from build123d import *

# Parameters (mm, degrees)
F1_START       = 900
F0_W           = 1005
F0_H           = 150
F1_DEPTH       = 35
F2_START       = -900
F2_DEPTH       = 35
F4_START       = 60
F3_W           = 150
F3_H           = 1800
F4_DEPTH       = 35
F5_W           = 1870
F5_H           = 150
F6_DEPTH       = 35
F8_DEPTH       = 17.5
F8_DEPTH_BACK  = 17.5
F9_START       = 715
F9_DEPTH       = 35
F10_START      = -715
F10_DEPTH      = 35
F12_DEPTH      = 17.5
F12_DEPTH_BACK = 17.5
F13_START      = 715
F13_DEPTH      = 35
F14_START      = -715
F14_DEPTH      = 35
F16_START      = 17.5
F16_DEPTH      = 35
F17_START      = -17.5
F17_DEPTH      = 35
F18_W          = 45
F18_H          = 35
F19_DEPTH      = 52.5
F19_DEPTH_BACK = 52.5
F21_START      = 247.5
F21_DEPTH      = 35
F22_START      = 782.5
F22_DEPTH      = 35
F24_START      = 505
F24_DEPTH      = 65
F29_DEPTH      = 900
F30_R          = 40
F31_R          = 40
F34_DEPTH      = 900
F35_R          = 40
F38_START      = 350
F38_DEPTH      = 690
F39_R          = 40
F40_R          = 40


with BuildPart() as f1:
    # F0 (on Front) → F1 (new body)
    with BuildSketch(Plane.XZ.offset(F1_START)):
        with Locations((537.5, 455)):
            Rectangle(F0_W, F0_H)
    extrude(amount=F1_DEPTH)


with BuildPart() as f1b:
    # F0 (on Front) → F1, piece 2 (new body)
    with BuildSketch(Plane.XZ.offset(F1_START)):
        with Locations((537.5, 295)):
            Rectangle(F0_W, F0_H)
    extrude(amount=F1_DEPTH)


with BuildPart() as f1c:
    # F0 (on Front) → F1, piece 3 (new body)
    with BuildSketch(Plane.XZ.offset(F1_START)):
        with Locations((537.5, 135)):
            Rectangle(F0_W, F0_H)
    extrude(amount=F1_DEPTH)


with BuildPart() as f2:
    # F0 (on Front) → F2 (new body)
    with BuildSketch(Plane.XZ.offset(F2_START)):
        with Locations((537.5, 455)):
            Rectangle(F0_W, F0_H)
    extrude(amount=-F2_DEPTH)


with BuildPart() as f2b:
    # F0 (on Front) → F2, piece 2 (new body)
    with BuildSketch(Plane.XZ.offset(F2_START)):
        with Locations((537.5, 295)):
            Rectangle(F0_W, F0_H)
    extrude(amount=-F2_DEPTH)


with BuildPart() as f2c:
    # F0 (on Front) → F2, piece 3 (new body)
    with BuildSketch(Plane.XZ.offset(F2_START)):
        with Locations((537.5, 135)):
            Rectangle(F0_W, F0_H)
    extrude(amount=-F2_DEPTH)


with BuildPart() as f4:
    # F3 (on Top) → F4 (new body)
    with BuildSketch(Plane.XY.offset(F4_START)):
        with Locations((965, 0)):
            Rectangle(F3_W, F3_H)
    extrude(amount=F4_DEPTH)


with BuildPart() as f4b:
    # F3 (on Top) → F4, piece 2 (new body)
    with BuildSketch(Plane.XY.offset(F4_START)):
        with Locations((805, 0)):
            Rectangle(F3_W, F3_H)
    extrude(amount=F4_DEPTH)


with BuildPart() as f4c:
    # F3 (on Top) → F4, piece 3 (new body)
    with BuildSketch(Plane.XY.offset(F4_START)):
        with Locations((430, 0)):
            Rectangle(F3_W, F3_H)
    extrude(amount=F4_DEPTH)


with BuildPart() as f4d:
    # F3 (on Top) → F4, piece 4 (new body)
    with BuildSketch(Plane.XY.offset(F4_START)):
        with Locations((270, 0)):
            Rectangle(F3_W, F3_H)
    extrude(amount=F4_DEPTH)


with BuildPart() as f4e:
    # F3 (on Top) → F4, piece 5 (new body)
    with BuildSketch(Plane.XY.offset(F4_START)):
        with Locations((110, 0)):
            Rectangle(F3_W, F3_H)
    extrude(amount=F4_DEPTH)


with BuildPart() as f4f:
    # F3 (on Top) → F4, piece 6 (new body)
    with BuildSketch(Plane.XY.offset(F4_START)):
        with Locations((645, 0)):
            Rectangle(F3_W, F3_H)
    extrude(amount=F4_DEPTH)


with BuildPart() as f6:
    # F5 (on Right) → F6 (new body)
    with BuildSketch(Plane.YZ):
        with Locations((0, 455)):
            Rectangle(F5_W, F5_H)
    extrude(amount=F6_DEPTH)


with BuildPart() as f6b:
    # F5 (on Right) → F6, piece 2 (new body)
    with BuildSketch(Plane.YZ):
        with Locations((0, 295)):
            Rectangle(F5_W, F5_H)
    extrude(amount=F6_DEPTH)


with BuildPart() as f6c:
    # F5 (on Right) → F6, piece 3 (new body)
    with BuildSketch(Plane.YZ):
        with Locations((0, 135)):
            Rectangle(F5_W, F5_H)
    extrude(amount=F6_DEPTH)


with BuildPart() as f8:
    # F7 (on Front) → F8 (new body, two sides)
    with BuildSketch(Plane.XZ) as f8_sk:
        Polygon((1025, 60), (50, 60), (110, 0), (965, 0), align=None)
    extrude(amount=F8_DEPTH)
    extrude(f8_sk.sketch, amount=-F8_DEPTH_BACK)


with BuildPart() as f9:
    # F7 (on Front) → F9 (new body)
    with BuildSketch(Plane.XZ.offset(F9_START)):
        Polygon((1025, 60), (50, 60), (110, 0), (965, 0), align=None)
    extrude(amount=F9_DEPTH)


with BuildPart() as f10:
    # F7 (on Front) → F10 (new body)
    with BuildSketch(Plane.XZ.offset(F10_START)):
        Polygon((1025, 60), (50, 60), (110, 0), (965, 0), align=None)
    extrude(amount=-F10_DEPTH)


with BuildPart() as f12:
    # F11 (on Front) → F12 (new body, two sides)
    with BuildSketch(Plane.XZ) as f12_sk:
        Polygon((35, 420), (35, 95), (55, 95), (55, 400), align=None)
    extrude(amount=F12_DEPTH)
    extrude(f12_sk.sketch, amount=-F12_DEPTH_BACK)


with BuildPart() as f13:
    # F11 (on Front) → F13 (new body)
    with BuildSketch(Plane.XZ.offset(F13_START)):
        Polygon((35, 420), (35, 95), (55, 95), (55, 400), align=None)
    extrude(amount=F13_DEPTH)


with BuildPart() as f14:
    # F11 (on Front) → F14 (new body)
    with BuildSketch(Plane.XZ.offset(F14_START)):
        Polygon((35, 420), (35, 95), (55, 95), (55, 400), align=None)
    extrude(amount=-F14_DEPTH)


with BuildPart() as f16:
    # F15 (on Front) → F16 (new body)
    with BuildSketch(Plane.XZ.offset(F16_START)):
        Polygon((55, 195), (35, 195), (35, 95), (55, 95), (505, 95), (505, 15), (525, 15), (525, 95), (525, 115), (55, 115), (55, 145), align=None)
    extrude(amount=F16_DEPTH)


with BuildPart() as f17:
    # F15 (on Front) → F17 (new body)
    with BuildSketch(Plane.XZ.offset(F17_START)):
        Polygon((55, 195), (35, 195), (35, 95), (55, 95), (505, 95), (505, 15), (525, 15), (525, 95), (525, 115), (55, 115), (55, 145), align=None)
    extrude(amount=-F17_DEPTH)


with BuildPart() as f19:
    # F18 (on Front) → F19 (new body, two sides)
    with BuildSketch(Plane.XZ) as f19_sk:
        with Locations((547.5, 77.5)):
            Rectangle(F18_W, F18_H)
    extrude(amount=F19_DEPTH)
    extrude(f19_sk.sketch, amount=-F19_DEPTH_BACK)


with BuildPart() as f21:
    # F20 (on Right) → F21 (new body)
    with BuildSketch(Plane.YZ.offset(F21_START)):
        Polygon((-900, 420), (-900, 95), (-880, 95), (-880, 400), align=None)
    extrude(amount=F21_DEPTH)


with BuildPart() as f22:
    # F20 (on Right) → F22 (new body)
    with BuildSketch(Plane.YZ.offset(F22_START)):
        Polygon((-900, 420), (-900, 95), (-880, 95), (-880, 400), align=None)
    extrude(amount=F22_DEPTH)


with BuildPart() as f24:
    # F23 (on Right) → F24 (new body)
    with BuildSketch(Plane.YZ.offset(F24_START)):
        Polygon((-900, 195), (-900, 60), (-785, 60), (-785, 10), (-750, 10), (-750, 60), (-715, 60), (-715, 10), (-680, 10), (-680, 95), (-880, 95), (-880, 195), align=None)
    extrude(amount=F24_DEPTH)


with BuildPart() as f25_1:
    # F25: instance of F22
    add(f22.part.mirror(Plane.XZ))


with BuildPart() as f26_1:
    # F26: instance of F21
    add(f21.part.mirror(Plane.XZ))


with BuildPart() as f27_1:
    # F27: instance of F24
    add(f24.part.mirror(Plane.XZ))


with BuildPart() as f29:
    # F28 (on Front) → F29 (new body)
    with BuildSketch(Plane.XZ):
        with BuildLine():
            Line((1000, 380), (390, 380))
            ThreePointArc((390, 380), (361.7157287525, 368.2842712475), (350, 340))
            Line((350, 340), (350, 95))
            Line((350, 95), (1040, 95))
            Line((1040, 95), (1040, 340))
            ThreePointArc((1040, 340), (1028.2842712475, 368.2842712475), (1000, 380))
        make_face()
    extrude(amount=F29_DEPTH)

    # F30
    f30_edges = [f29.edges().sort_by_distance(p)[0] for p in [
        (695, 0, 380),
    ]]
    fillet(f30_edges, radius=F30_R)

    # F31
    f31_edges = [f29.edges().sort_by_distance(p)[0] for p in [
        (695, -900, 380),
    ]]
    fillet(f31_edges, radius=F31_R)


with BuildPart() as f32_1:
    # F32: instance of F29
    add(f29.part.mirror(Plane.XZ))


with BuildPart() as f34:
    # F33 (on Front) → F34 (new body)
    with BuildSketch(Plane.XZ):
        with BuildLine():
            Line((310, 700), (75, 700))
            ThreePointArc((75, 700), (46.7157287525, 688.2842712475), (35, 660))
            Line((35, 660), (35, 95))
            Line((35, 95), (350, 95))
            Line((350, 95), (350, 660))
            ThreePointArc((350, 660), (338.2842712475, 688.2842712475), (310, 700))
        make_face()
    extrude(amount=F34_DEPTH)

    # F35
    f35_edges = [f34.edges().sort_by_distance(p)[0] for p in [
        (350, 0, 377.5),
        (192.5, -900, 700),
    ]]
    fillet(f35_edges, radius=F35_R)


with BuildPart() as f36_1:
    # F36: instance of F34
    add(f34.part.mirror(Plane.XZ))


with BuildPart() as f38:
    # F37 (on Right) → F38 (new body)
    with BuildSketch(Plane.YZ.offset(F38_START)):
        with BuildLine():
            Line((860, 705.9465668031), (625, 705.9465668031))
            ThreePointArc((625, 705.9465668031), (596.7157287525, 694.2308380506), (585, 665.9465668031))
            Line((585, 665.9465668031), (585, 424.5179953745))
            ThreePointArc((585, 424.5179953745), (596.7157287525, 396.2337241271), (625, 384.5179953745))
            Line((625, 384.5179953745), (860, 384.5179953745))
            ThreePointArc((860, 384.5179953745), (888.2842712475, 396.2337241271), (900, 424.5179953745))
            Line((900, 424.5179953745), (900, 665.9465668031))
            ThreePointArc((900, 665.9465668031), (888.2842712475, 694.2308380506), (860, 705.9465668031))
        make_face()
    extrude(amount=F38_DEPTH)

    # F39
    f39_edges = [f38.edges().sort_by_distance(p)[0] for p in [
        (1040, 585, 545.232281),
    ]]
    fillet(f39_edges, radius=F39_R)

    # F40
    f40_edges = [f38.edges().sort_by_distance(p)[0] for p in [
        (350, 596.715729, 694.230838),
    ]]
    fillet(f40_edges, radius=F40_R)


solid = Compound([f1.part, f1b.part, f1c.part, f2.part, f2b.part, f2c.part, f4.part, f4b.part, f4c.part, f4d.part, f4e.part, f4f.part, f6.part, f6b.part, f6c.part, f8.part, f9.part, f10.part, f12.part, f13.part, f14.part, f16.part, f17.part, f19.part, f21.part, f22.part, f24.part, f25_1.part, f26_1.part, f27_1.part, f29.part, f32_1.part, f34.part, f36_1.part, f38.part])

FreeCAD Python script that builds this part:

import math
import FreeCAD as App
import Part
import Sketcher


def edges_at(feature, points):
    """Names of the edges that pass closest to the given points."""
    edges = feature.Shape.Edges
    near = lambda p: min(range(len(edges)), key=lambda i: edges[i].distToShape(Part.Vertex(*p))[0])
    return sorted({f"Edge{near(p) + 1}" for p in points})


def add_polygon(sketch, points):
    """Adds a closed chain of lines whose ends are joined by coincident constraints."""
    first, n = sketch.GeometryCount, len(points)
    for a, b in zip(points, points[1:] + points[:1]):
        sketch.addGeometry(Part.LineSegment(App.Vector(*a, 0), App.Vector(*b, 0)), False)
    for i in range(n):
        sketch.addConstraint(Sketcher.Constraint("Coincident", first + i, 2, first + (i + 1) % n, 1))

doc = App.newDocument("Part")
body = doc.addObject("PartDesign::Body", "Body")

# Sketch on XZ plane
sketch1 = doc.addObject("Sketcher::SketchObject", "Sketch")
body.addObject(sketch1)
sketch1.AttachmentSupport = (doc.XZ_Plane, [""])
sketch1.MapMode = "FlatFace"
sketch1.AttachmentOffset = App.Placement(App.Vector(0, 0, 900), App.Rotation())
add_polygon(sketch1, [(35, 530), (35, 380), (1040, 380), (1040, 530)])  # lines 0-3
sketch1.addConstraint(Sketcher.Constraint("Vertical", 0))
sketch1.addConstraint(Sketcher.Constraint("Horizontal", 1))
sketch1.addConstraint(Sketcher.Constraint("Vertical", 2))
sketch1.addConstraint(Sketcher.Constraint("Horizontal", 3))
sketch1.addConstraint(Sketcher.Constraint("DistanceX", 1, 1, 1, 2, 1005.0))
sketch1.addConstraint(Sketcher.Constraint("DistanceY", 0, 2, 0, 1, 150.0))
sketch1.addConstraint(Sketcher.Constraint("DistanceX", -1, 1, 0, 2, 35.0))
sketch1.addConstraint(Sketcher.Constraint("DistanceY", -1, 1, 0, 2, 380.0))
pad1 = doc.addObject("PartDesign::Pad", "Pad")
body.addObject(pad1)
pad1.Profile = sketch1
pad1.Length = 35
body2 = doc.addObject("PartDesign::Body", "Body001")

# Sketch on XZ plane
sketch2 = doc.addObject("Sketcher::SketchObject", "Sketch001")
body2.addObject(sketch2)
sketch2.AttachmentSupport = (doc.getObject("XZ_Plane001"), [""])
sketch2.MapMode = "FlatFace"
sketch2.AttachmentOffset = App.Placement(App.Vector(0, 0, 900), App.Rotation())
add_polygon(sketch2, [(35, 370), (35, 220), (1040, 220), (1040, 370)])  # lines 0-3
sketch2.addConstraint(Sketcher.Constraint("Vertical", 0))
sketch2.addConstraint(Sketcher.Constraint("Horizontal", 1))
sketch2.addConstraint(Sketcher.Constraint("Vertical", 2))
sketch2.addConstraint(Sketcher.Constraint("Horizontal", 3))
sketch2.addConstraint(Sketcher.Constraint("DistanceX", 1, 1, 1, 2, 1005.0))
sketch2.addConstraint(Sketcher.Constraint("DistanceY", 0, 2, 0, 1, 150.0))
sketch2.addConstraint(Sketcher.Constraint("DistanceX", -1, 1, 0, 2, 35.0))
sketch2.addConstraint(Sketcher.Constraint("DistanceY", -1, 1, 0, 2, 220.0))
pad2 = doc.addObject("PartDesign::Pad", "Pad001")
body2.addObject(pad2)
pad2.Profile = sketch2
pad2.Length = 35
body3 = doc.addObject("PartDesign::Body", "Body002")

# Sketch on XZ plane
sketch3 = doc.addObject("Sketcher::SketchObject", "Sketch002")
body3.addObject(sketch3)
sketch3.AttachmentSupport = (doc.getObject("XZ_Plane002"), [""])
sketch3.MapMode = "FlatFace"
sketch3.AttachmentOffset = App.Placement(App.Vector(0, 0, 900), App.Rotation())
add_polygon(sketch3, [(35, 210), (35, 60), (1040, 60), (1040, 210)])  # lines 0-3
sketch3.addConstraint(Sketcher.Constraint("Vertical", 0))
sketch3.addConstraint(Sketcher.Constraint("Horizontal", 1))
sketch3.addConstraint(Sketcher.Constraint("Vertical", 2))
sketch3.addConstraint(Sketcher.Constraint("Horizontal", 3))
sketch3.addConstraint(Sketcher.Constraint("DistanceX", 1, 1, 1, 2, 1005.0))
sketch3.addConstraint(Sketcher.Constraint("DistanceY", 0, 2, 0, 1, 150.0))
sketch3.addConstraint(Sketcher.Constraint("DistanceX", -1, 1, 0, 2, 35.0))
sketch3.addConstraint(Sketcher.Constraint("DistanceY", -1, 1, 0, 2, 60.0))
pad3 = doc.addObject("PartDesign::Pad", "Pad002")
body3.addObject(pad3)
pad3.Profile = sketch3
pad3.Length = 35
body4 = doc.addObject("PartDesign::Body", "Body003")

# Sketch on XZ plane
sketch4 = doc.addObject("Sketcher::SketchObject", "Sketch003")
body4.addObject(sketch4)
sketch4.AttachmentSupport = (doc.getObject("XZ_Plane003"), [""])
sketch4.MapMode = "FlatFace"
sketch4.AttachmentOffset = App.Placement(App.Vector(0, 0, -900), App.Rotation())
add_polygon(sketch4, [(35, 530), (35, 380), (1040, 380), (1040, 530)])  # lines 0-3
sketch4.addConstraint(Sketcher.Constraint("Vertical", 0))
sketch4.addConstraint(Sketcher.Constraint("Horizontal", 1))
sketch4.addConstraint(Sketcher.Constraint("Vertical", 2))
sketch4.addConstraint(Sketcher.Constraint("Horizontal", 3))
sketch4.addConstraint(Sketcher.Constraint("DistanceX", 1, 1, 1, 2, 1005.0))
sketch4.addConstraint(Sketcher.Constraint("DistanceY", 0, 2, 0, 1, 150.0))
sketch4.addConstraint(Sketcher.Constraint("DistanceX", -1, 1, 0, 2, 35.0))
sketch4.addConstraint(Sketcher.Constraint("DistanceY", -1, 1, 0, 2, 380.0))
pad4 = doc.addObject("PartDesign::Pad", "Pad003")
body4.addObject(pad4)
pad4.Profile = sketch4
pad4.Length = 35
pad4.Reversed = True
body5 = doc.addObject("PartDesign::Body", "Body004")

# Sketch on XZ plane
sketch5 = doc.addObject("Sketcher::SketchObject", "Sketch004")
body5.addObject(sketch5)
sketch5.AttachmentSupport = (doc.getObject("XZ_Plane004"), [""])
sketch5.MapMode = "FlatFace"
sketch5.AttachmentOffset = App.Placement(App.Vector(0, 0, -900), App.Rotation())
add_polygon(sketch5, [(35, 370), (35, 220), (1040, 220), (1040, 370)])  # lines 0-3
sketch5.addConstraint(Sketcher.Constraint("Vertical", 0))
sketch5.addConstraint(Sketcher.Constraint("Horizontal", 1))
sketch5.addConstraint(Sketcher.Constraint("Vertical", 2))
sketch5.addConstraint(Sketcher.Constraint("Horizontal", 3))
sketch5.addConstraint(Sketcher.Constraint("DistanceX", 1, 1, 1, 2, 1005.0))
sketch5.addConstraint(Sketcher.Constraint("DistanceY", 0, 2, 0, 1, 150.0))
sketch5.addConstraint(Sketcher.Constraint("DistanceX", -1, 1, 0, 2, 35.0))
sketch5.addConstraint(Sketcher.Constraint("DistanceY", -1, 1, 0, 2, 220.0))
pad5 = doc.addObject("PartDesign::Pad", "Pad004")
body5.addObject(pad5)
pad5.Profile = sketch5
pad5.Length = 35
pad5.Reversed = True
body6 = doc.addObject("PartDesign::Body", "Body005")

# Sketch on XZ plane
sketch6 = doc.addObject("Sketcher::SketchObject", "Sketch005")
body6.addObject(sketch6)
sketch6.AttachmentSupport = (doc.getObject("XZ_Plane005"), [""])
sketch6.MapMode = "FlatFace"
sketch6.AttachmentOffset = App.Placement(App.Vector(0, 0, -900), App.Rotation())
add_polygon(sketch6, [(35, 210), (35, 60), (1040, 60), (1040, 210)])  # lines 0-3
sketch6.addConstraint(Sketcher.Constraint("Vertical", 0))
sketch6.addConstraint(Sketcher.Constraint("Horizontal", 1))
sketch6.addConstraint(Sketcher.Constraint("Vertical", 2))
sketch6.addConstraint(Sketcher.Constraint("Horizontal", 3))
sketch6.addConstraint(Sketcher.Constraint("DistanceX", 1, 1, 1, 2, 1005.0))
sketch6.addConstraint(Sketcher.Constraint("DistanceY", 0, 2, 0, 1, 150.0))
sketch6.addConstraint(Sketcher.Constraint("DistanceX", -1, 1, 0, 2, 35.0))
sketch6.addConstraint(Sketcher.Constraint("DistanceY", -1, 1, 0, 2, 60.0))
pad6 = doc.addObject("PartDesign::Pad", "Pad005")
body6.addObject(pad6)
pad6.Profile = sketch6
pad6.Length = 35
pad6.Reversed = True
body7 = doc.addObject("PartDesign::Body", "Body006")

# Sketch on XY plane
sketch7 = doc.addObject("Sketcher::SketchObject", "Sketch006")
body7.addObject(sketch7)
sketch7.AttachmentSupport = (doc.getObject("XY_Plane006"), [""])
sketch7.MapMode = "FlatFace"
sketch7.AttachmentOffset = App.Placement(App.Vector(0, 0, 60), App.Rotation())
add_polygon(sketch7, [(890, 900), (890, -900), (1040, -900), (1040, 900)])  # lines 0-3
sketch7.addConstraint(Sketcher.Constraint("Vertical", 0))
sketch7.addConstraint(Sketcher.Constraint("Horizontal", 1))
sketch7.addConstraint(Sketcher.Constraint("Vertical", 2))
sketch7.addConstraint(Sketcher.Constraint("Horizontal", 3))
sketch7.addConstraint(Sketcher.Constraint("DistanceX", 1, 1, 1, 2, 150.0))
sketch7.addConstraint(Sketcher.Constraint("DistanceY", 0, 2, 0, 1, 1800.0))
sketch7.addConstraint(Sketcher.Constraint("DistanceX", -1, 1, 0, 2, 890.0))
sketch7.addConstraint(Sketcher.Constraint("DistanceY", 0, 2, -1, 1, 900.0))
pad7 = doc.addObject("PartDesign::Pad", "Pad006")
body7.addObject(pad7)
pad7.Profile = sketch7
pad7.Length = 35
body8 = doc.addObject("PartDesign::Body", "Body007")

# Sketch on XY plane
sketch8 = doc.addObject("Sketcher::SketchObject", "Sketch007")
body8.addObject(sketch8)
sketch8.AttachmentSupport = (doc.getObject("XY_Plane007"), [""])
sketch8.MapMode = "FlatFace"
sketch8.AttachmentOffset = App.Placement(App.Vector(0, 0, 60), App.Rotation())
add_polygon(sketch8, [(730, 900), (730, -900), (880, -900), (880, 900)])  # lines 0-3
sketch8.addConstraint(Sketcher.Constraint("Vertical", 0))
sketch8.addConstraint(Sketcher.Constraint("Horizontal", 1))
sketch8.addConstraint(Sketcher.Constraint("Vertical", 2))
sketch8.addConstraint(Sketcher.Constraint("Horizontal", 3))
sketch8.addConstraint(Sketcher.Constraint("DistanceX", 1, 1, 1, 2, 150.0))
sketch8.addConstraint(Sketcher.Constraint("DistanceY", 0, 2, 0, 1, 1800.0))
sketch8.addConstraint(Sketcher.Constraint("DistanceX", -1, 1, 0, 2, 730.0))
sketch8.addConstraint(Sketcher.Constraint("DistanceY", 0, 2, -1, 1, 900.0))
pad8 = doc.addObject("PartDesign::Pad", "Pad007")
body8.addObject(pad8)
pad8.Profile = sketch8
pad8.Length = 35
body9 = doc.addObject("PartDesign::Body", "Body008")

# Sketch on XY plane
sketch9 = doc.addObject("Sketcher::SketchObject", "Sketch008")
body9.addObject(sketch9)
sketch9.AttachmentSupport = (doc.getObject("XY_Plane008"), [""])
sketch9.MapMode = "FlatFace"
sketch9.AttachmentOffset = App.Placement(App.Vector(0, 0, 60), App.Rotation())
add_polygon(sketch9, [(355, 900), (355, -900), (505, -900), (505, 900)])  # lines 0-3
sketch9.addConstraint(Sketcher.Constraint("Vertical", 0))
sketch9.addConstraint(Sketcher.Constraint("Horizontal", 1))
sketch9.addConstraint(Sketcher.Constraint("Vertical", 2))
sketch9.addConstraint(Sketcher.Constraint("Horizontal", 3))
sketch9.addConstraint(Sketcher.Constraint("DistanceX", 1, 1, 1, 2, 150.0))
sketch9.addConstraint(Sketcher.Constraint("DistanceY", 0, 2, 0, 1, 1800.0))
sketch9.addConstraint(Sketcher.Constraint("DistanceX", -1, 1, 0, 2, 355.0))
sketch9.addConstraint(Sketcher.Constraint("DistanceY", 0, 2, -1, 1, 900.0))
pad9 = doc.addObject("PartDesign::Pad", "Pad008")
body9.addObject(pad9)
pad9.Profile = sketch9
pad9.Length = 35
body10 = doc.addObject("PartDesign::Body", "Body009")

# Sketch on XY plane
sketch10 = doc.addObject("Sketcher::SketchObject", "Sketch009")
body10.addObject(sketch10)
sketch10.AttachmentSupport = (doc.getObject("XY_Plane009"), [""])
sketch10.MapMode = "FlatFace"
sketch10.AttachmentOffset = App.Placement(App.Vector(0, 0, 60), App.Rotation())
add_polygon(sketch10, [(195, 900), (195, -900), (345, -900), (345, 900)])  # lines 0-3
sketch10.addConstraint(Sketcher.Constraint("Vertical", 0))
sketch10.addConstraint(Sketcher.Constraint("Horizontal", 1))
sketch10.addConstraint(Sketcher.Constraint("Vertical", 2))
sketch10.addConstraint(Sketcher.Constraint("Horizontal", 3))
sketch10.addConstraint(Sketcher.Constraint("DistanceX", 1, 1, 1, 2, 150.0))
sketch10.addConstraint(Sketcher.Constraint("DistanceY", 0, 2, 0, 1, 1800.0))
sketch10.addConstraint(Sketcher.Constraint("DistanceX", -1, 1, 0, 2, 195.0))
sketch10.addConstraint(Sketcher.Constraint("DistanceY", 0, 2, -1, 1, 900.0))
pad10 = doc.addObject("PartDesign::Pad", "Pad009")
body10.addObject(pad10)
pad10.Profile = sketch10
pad10.Length = 35
body11 = doc.addObject("PartDesign::Body", "Body010")

# Sketch on XY plane
sketch11 = doc.addObject("Sketcher::SketchObject", "Sketch010")
body11.addObject(sketch11)
sketch11.AttachmentSupport = (doc.getObject("XY_Plane010"), [""])
sketch11.MapMode = "FlatFace"
sketch11.AttachmentOffset = App.Placement(App.Vector(0, 0, 60), App.Rotation())
add_polygon(sketch11, [(35, 900), (35, -900), (185, -900), (185, 900)])  # lines 0-3
sketch11.addConstraint(Sketcher.Constraint("Vertical", 0))
sketch11.addConstraint(Sketcher.Constraint("Horizontal", 1))
sketch11.addConstraint(Sketcher.Constraint("Vertical", 2))
sketch11.addConstraint(Sketcher.Constraint("Horizontal", 3))
sketch11.addConstraint(Sketcher.Constraint("DistanceX", 1, 1, 1, 2, 150.0))
sketch11.addConstraint(Sketcher.Constraint("DistanceY", 0, 2, 0, 1, 1800.0))
sketch11.addConstraint(Sketcher.Constraint("DistanceX", -1, 1, 0, 2, 35.0))
sketch11.addConstraint(Sketcher.Constraint("DistanceY", 0, 2, -1, 1, 900.0))
pad11 = doc.addObject("PartDesign::Pad", "Pad010")
body11.addObject(pad11)
pad11.Profile = sketch11
pad11.Length = 35
body12 = doc.addObject("PartDesign::Body", "Body011")

# Sketch on XY plane
sketch12 = doc.addObject("Sketcher::SketchObject", "Sketch011")
body12.addObject(sketch12)
sketch12.AttachmentSupport = (doc.getObject("XY_Plane011"), [""])
sketch12.MapMode = "FlatFace"
sketch12.AttachmentOffset = App.Placement(App.Vector(0, 0, 60), App.Rotation())
add_polygon(sketch12, [(570, 900), (570, -900), (720, -900), (720, 900)])  # lines 0-3
sketch12.addConstraint(Sketcher.Constraint("Vertical", 0))
sketch12.addConstraint(Sketcher.Constraint("Horizontal", 1))
sketch12.addConstraint(Sketcher.Constraint("Vertical", 2))
sketch12.addConstraint(Sketcher.Constraint("Horizontal", 3))
sketch12.addConstraint(Sketcher.Constraint("DistanceX", 1, 1, 1, 2, 150.0))
sketch12.addConstraint(Sketcher.Constraint("DistanceY", 0, 2, 0, 1, 1800.0))
sketch12.addConstraint(Sketcher.Constraint("DistanceX", -1, 1, 0, 2, 570.0))
sketch12.addConstraint(Sketcher.Constraint("DistanceY", 0, 2, -1, 1, 900.0))
pad12 = doc.addObject("PartDesign::Pad", "Pad011")
body12.addObject(pad12)
pad12.Profile = sketch12
pad12.Length = 35
body13 = doc.addObject("PartDesign::Body", "Body012")

# Sketch on YZ plane
sketch13 = doc.addObject("Sketcher::SketchObject", "Sketch012")
body13.addObject(sketch13)
sketch13.AttachmentSupport = (doc.getObject("YZ_Plane012"), [""])
sketch13.MapMode = "FlatFace"
add_polygon(sketch13, [(-935, 530), (-935, 380), (935, 380), (935, 530)])  # lines 0-3
sketch13.addConstraint(Sketcher.Constraint("Vertical", 0))
sketch13.addConstraint(Sketcher.Constraint("Horizontal", 1))
sketch13.addConstraint(Sketcher.Constraint("Vertical", 2))
sketch13.addConstraint(Sketcher.Constraint("Horizontal", 3))
sketch13.addConstraint(Sketcher.Constraint("DistanceX", 1, 1, 1, 2, 1870.0))
sketch13.addConstraint(Sketcher.Constraint("DistanceY", 0, 2, 0, 1, 150.0))
sketch13.addConstraint(Sketcher.Constraint("DistanceX", 0, 2, -1, 1, 935.0))
sketch13.addConstraint(Sketcher.Constraint("DistanceY", -1, 1, 0, 2, 380.0))
pad13 = doc.addObject("PartDesign::Pad", "Pad012")
body13.addObject(pad13)
pad13.Profile = sketch13
pad13.Length = 35
body14 = doc.addObject("PartDesign::Body", "Body013")

# Sketch on YZ plane
sketch14 = doc.addObject("Sketcher::SketchObject", "Sketch013")
body14.addObject(sketch14)
sketch14.AttachmentSupport = (doc.getObject("YZ_Plane013"), [""])
sketch14.MapMode = "FlatFace"
add_polygon(sketch14, [(-935, 370), (-935, 220), (935, 220), (935, 370)])  # lines 0-3
sketch14.addConstraint(Sketcher.Constraint("Vertical", 0))
sketch14.addConstraint(Sketcher.Constraint("Horizontal", 1))
sketch14.addConstraint(Sketcher.Constraint("Vertical", 2))
sketch14.addConstraint(Sketcher.Constraint("Horizontal", 3))
sketch14.addConstraint(Sketcher.Constraint("DistanceX", 1, 1, 1, 2, 1870.0))
sketch14.addConstraint(Sketcher.Constraint("DistanceY", 0, 2, 0, 1, 150.0))
sketch14.addConstraint(Sketcher.Constraint("DistanceX", 0, 2, -1, 1, 935.0))
sketch14.addConstraint(Sketcher.Constraint("DistanceY", -1, 1, 0, 2, 220.0))
pad14 = doc.addObject("PartDesign::Pad", "Pad013")
body14.addObject(pad14)
pad14.Profile = sketch14
pad14.Length = 35
body15 = doc.addObject("PartDesign::Body", "Body014")

# Sketch on YZ plane
sketch15 = doc.addObject("Sketcher::SketchObject", "Sketch014")
body15.addObject(sketch15)
sketch15.AttachmentSupport = (doc.getObject("YZ_Plane014"), [""])
sketch15.MapMode = "FlatFace"
add_polygon(sketch15, [(-935, 210), (-935, 60), (935, 60), (935, 210)])  # lines 0-3
sketch15.addConstraint(Sketcher.Constraint("Vertical", 0))
sketch15.addConstraint(Sketcher.Constraint("Horizontal", 1))
sketch15.addConstraint(Sketcher.Constraint("Vertical", 2))
sketch15.addConstraint(Sketcher.Constraint("Horizontal", 3))
sketch15.addConstraint(Sketcher.Constraint("DistanceX", 1, 1, 1, 2, 1870.0))
sketch15.addConstraint(Sketcher.Constraint("DistanceY", 0, 2, 0, 1, 150.0))
sketch15.addConstraint(Sketcher.Constraint("DistanceX", 0, 2, -1, 1, 935.0))
sketch15.addConstraint(Sketcher.Constraint("DistanceY", -1, 1, 0, 2, 60.0))
pad15 = doc.addObject("PartDesign::Pad", "Pad014")
body15.addObject(pad15)
pad15.Profile = sketch15
pad15.Length = 35
body16 = doc.addObject("PartDesign::Body", "Body015")

# Sketch on XZ plane
sketch16 = doc.addObject("Sketcher::SketchObject", "Sketch015")
body16.addObject(sketch16)
sketch16.AttachmentSupport = (doc.getObject("XZ_Plane015"), [""])
sketch16.MapMode = "FlatFace"
add_polygon(sketch16, [(1025, 60), (50, 60), (110, 0), (965, 0)])  # lines 0-3
sketch16.addConstraint(Sketcher.Constraint("Horizontal", 0))
sketch16.addConstraint(Sketcher.Constraint("Horizontal", 2))
sketch16.addConstraint(Sketcher.Constraint("PointOnObject", 1, 2, -1))
sketch16.addConstraint(Sketcher.Constraint("Perpendicular", 1, 3))
sketch16.addConstraint(Sketcher.Constraint("Equal", 1, 3))
sketch16.addConstraint(Sketcher.Constraint("DistanceX", 0, 2, 0, 1, 975.0))
sketch16.addConstraint(Sketcher.Constraint("DistanceX", 2, 1, 2, 2, 855.0))
sketch16.addConstraint(Sketcher.Constraint("DistanceX", -1, 1, 0, 2, 50.0))
pad16 = doc.addObject("PartDesign::Pad", "Pad015")
body16.addObject(pad16)
pad16.Profile = sketch16
pad16.Type = "TwoLengths"
pad16.Length = 17.5
pad16.Length2 = 17.5
body17 = doc.addObject("PartDesign::Body", "Body016")

# Sketch on XZ plane
sketch17 = doc.addObject("Sketcher::SketchObject", "Sketch016")
body17.addObject(sketch17)
sketch17.AttachmentSupport = (doc.getObject("XZ_Plane016"), [""])
sketch17.MapMode = "FlatFace"
sketch17.AttachmentOffset = App.Placement(App.Vector(0, 0, 715), App.Rotation())
add_polygon(sketch17, [(1025, 60), (50, 60), (110, 0), (965, 0)])  # lines 0-3
sketch17.addConstraint(Sketcher.Constraint("Horizontal", 0))
sketch17.addConstraint(Sketcher.Constraint("Horizontal", 2))
sketch17.addConstraint(Sketcher.Constraint("PointOnObject", 1, 2, -1))
sketch17.addConstraint(Sketcher.Constraint("Perpendicular", 1, 3))
sketch17.addConstraint(Sketcher.Constraint("Equal", 1, 3))
sketch17.addConstraint(Sketcher.Constraint("DistanceX", 0, 2, 0, 1, 975.0))
sketch17.addConstraint(Sketcher.Constraint("DistanceX", 2, 1, 2, 2, 855.0))
sketch17.addConstraint(Sketcher.Constraint("DistanceX", -1, 1, 0, 2, 50.0))
pad17 = doc.addObject("PartDesign::Pad", "Pad016")
body17.addObject(pad17)
pad17.Profile = sketch17
pad17.Length = 35
body18 = doc.addObject("PartDesign::Body", "Body017")

# Sketch on XZ plane
sketch18 = doc.addObject("Sketcher::SketchObject", "Sketch017")
body18.addObject(sketch18)
sketch18.AttachmentSupport = (doc.getObject("XZ_Plane017"), [""])
sketch18.MapMode = "FlatFace"
sketch18.AttachmentOffset = App.Placement(App.Vector(0, 0, -715), App.Rotation())
add_polygon(sketch18, [(1025, 60), (50, 60), (110, 0), (965, 0)])  # lines 0-3
sketch18.addConstraint(Sketcher.Constraint("Horizontal", 0))
sketch18.addConstraint(Sketcher.Constraint("Horizontal", 2))
sketch18.addConstraint(Sketcher.Constraint("PointOnObject", 1, 2, -1))
sketch18.addConstraint(Sketcher.Constraint("Perpendicular", 1, 3))
sketch18.addConstraint(Sketcher.Constraint("Equal", 1, 3))
sketch18.addConstraint(Sketcher.Constraint("DistanceX", 0, 2, 0, 1, 975.0))
sketch18.addConstraint(Sketcher.Constraint("DistanceX", 2, 1, 2, 2, 855.0))
sketch18.addConstraint(Sketcher.Constraint("DistanceX", -1, 1, 0, 2, 50.0))
pad18 = doc.addObject("PartDesign::Pad", "Pad017")
body18.addObject(pad18)
pad18.Profile = sketch18
pad18.Length = 35
pad18.Reversed = True
body19 = doc.addObject("PartDesign::Body", "Body018")

# Sketch on XZ plane
sketch19 = doc.addObject("Sketcher::SketchObject", "Sketch018")
body19.addObject(sketch19)
sketch19.AttachmentSupport = (doc.getObject("XZ_Plane018"), [""])
sketch19.MapMode = "FlatFace"
add_polygon(sketch19, [(35, 420), (35, 95), (55, 95), (55, 400)])  # lines 0-3
sketch19.addConstraint(Sketcher.Constraint("Vertical", 0))
sketch19.addConstraint(Sketcher.Constraint("Horizontal", 1))
sketch19.addConstraint(Sketcher.Constraint("Vertical", 2))
sketch19.addConstraint(Sketcher.Constraint("DistanceX", 1, 1, 1, 2, 20.0))
sketch19.addConstraint(Sketcher.Constraint("DistanceY", 0, 2, 0, 1, 325.0))
sketch19.addConstraint(Sketcher.Constraint("DistanceY", 2, 1, 2, 2, 305.0))
sketch19.addConstraint(Sketcher.Constraint("DistanceX", -1, 1, 0, 2, 35.0))
sketch19.addConstraint(Sketcher.Constraint("DistanceY", -1, 1, 0, 2, 95.0))
pad19 = doc.addObject("PartDesign::Pad", "Pad018")
body19.addObject(pad19)
pad19.Profile = sketch19
pad19.Type = "TwoLengths"
pad19.Length = 17.5
pad19.Length2 = 17.5
body20 = doc.addObject("PartDesign::Body", "Body019")

# Sketch on XZ plane
sketch20 = doc.addObject("Sketcher::SketchObject", "Sketch019")
body20.addObject(sketch20)
sketch20.AttachmentSupport = (doc.getObject("XZ_Plane019"), [""])
sketch20.MapMode = "FlatFace"
sketch20.AttachmentOffset = App.Placement(App.Vector(0, 0, 715), App.Rotation())
add_polygon(sketch20, [(35, 420), (35, 95), (55, 95), (55, 400)])  # lines 0-3
sketch20.addConstraint(Sketcher.Constraint("Vertical", 0))
sketch20.addConstraint(Sketcher.Constraint("Horizontal", 1))
sketch20.addConstraint(Sketcher.Constraint("Vertical", 2))
sketch20.addConstraint(Sketcher.Constraint("DistanceX", 1, 1, 1, 2, 20.0))
sketch20.addConstraint(Sketcher.Constraint("DistanceY", 0, 2, 0, 1, 325.0))
sketch20.addConstraint(Sketcher.Constraint("DistanceY", 2, 1, 2, 2, 305.0))
sketch20.addConstraint(Sketcher.Constraint("DistanceX", -1, 1, 0, 2, 35.0))
sketch20.addConstraint(Sketcher.Constraint("DistanceY", -1, 1, 0, 2, 95.0))
pad20 = doc.addObject("PartDesign::Pad", "Pad019")
body20.addObject(pad20)
pad20.Profile = sketch20
pad20.Length = 35
body21 = doc.addObject("PartDesign::Body", "Body020")

# Sketch on XZ plane
sketch21 = doc.addObject("Sketcher::SketchObject", "Sketch020")
body21.addObject(sketch21)
sketch21.AttachmentSupport = (doc.getObject("XZ_Plane020"), [""])
sketch21.MapMode = "FlatFace"
sketch21.AttachmentOffset = App.Placement(App.Vector(0, 0, -715), App.Rotation())
add_polygon(sketch21, [(35, 420), (35, 95), (55, 95), (55, 400)])  # lines 0-3
sketch21.addConstraint(Sketcher.Constraint("Vertical", 0))
sketch21.addConstraint(Sketcher.Constraint("Horizontal", 1))
sketch21.addConstraint(Sketcher.Constraint("Vertical", 2))
sketch21.addConstraint(Sketcher.Constraint("DistanceX", 1, 1, 1, 2, 20.0))
sketch21.addConstraint(Sketcher.Constraint("DistanceY", 0, 2, 0, 1, 325.0))
sketch21.addConstraint(Sketcher.Constraint("DistanceY", 2, 1, 2, 2, 305.0))
sketch21.addConstraint(Sketcher.Constraint("DistanceX", -1, 1, 0, 2, 35.0))
sketch21.addConstraint(Sketcher.Constraint("DistanceY", -1, 1, 0, 2, 95.0))
pad21 = doc.addObject("PartDesign::Pad", "Pad020")
body21.addObject(pad21)
pad21.Profile = sketch21
pad21.Length = 35
pad21.Reversed = True
body22 = doc.addObject("PartDesign::Body", "Body021")

# Sketch on XZ plane
sketch22 = doc.addObject("Sketcher::SketchObject", "Sketch021")
body22.addObject(sketch22)
sketch22.AttachmentSupport = (doc.getObject("XZ_Plane021"), [""])
sketch22.MapMode = "FlatFace"
sketch22.AttachmentOffset = App.Placement(App.Vector(0, 0, 17.5), App.Rotation())
add_polygon(sketch22, [(55, 195), (35, 195), (35, 95), (505, 95), (505, 15), (525, 15), (525, 115), (55, 115)])  # lines 0-7
sketch22.addConstraint(Sketcher.Constraint("Horizontal", 0))
sketch22.addConstraint(Sketcher.Constraint("Vertical", 1))
sketch22.addConstraint(Sketcher.Constraint("Horizontal", 2))
sketch22.addConstraint(Sketcher.Constraint("Vertical", 3))
sketch22.addConstraint(Sketcher.Constraint("Horizontal", 4))
sketch22.addConstraint(Sketcher.Constraint("Vertical", 5))
sketch22.addConstraint(Sketcher.Constraint("Horizontal", 6))
sketch22.addConstraint(Sketcher.Constraint("Vertical", 7))
sketch22.addConstraint(Sketcher.Constraint("Equal", 0, 4))
sketch22.addConstraint(Sketcher.Constraint("Equal", 1, 5))
sketch22.addConstraint(Sketcher.Constraint("DistanceX", 0, 2, 0, 1, 20.0))
sketch22.addConstraint(Sketcher.Constraint("DistanceX", 2, 1, 2, 2, 470.0))
sketch22.addConstraint(Sketcher.Constraint("DistanceY", 1, 2, 1, 1, 100.0))
sketch22.addConstraint(Sketcher.Constraint("DistanceY", 3, 2, 3, 1, 80.0))
sketch22.addConstraint(Sketcher.Constraint("DistanceX", -1, 1, 0, 2, 35.0))
sketch22.addConstraint(Sketcher.Constraint("DistanceY", -1, 1, 0, 2, 195.0))
pad22 = doc.addObject("PartDesign::Pad", "Pad021")
body22.addObject(pad22)
pad22.Profile = sketch22
pad22.Length = 35
body23 = doc.addObject("PartDesign::Body", "Body022")

# Sketch on XZ plane
sketch23 = doc.addObject("Sketcher::SketchObject", "Sketch022")
body23.addObject(sketch23)
sketch23.AttachmentSupport = (doc.getObject("XZ_Plane022"), [""])
sketch23.MapMode = "FlatFace"
sketch23.AttachmentOffset = App.Placement(App.Vector(0, 0, -17.5), App.Rotation())
add_polygon(sketch23, [(55, 195), (35, 195), (35, 95), (505, 95), (505, 15), (525, 15), (525, 115), (55, 115)])  # lines 0-7
sketch23.addConstraint(Sketcher.Constraint("Horizontal", 0))
sketch23.addConstraint(Sketcher.Constraint("Vertical", 1))
sketch23.addConstraint(Sketcher.Constraint("Horizontal", 2))
sketch23.addConstraint(Sketcher.Constraint("Vertical", 3))
sketch23.addConstraint(Sketcher.Constraint("Horizontal", 4))
sketch23.addConstraint(Sketcher.Constraint("Vertical", 5))
sketch23.addConstraint(Sketcher.Constraint("Horizontal", 6))
sketch23.addConstraint(Sketcher.Constraint("Vertical", 7))
sketch23.addConstraint(Sketcher.Constraint("Equal", 0, 4))
sketch23.addConstraint(Sketcher.Constraint("Equal", 1, 5))
sketch23.addConstraint(Sketcher.Constraint("DistanceX", 0, 2, 0, 1, 20.0))
sketch23.addConstraint(Sketcher.Constraint("DistanceX", 2, 1, 2, 2, 470.0))
sketch23.addConstraint(Sketcher.Constraint("DistanceY", 1, 2, 1, 1, 100.0))
sketch23.addConstraint(Sketcher.Constraint("DistanceY", 3, 2, 3, 1, 80.0))
sketch23.addConstraint(Sketcher.Constraint("DistanceX", -1, 1, 0, 2, 35.0))
sketch23.addConstraint(Sketcher.Constraint("DistanceY", -1, 1, 0, 2, 195.0))
pad23 = doc.addObject("PartDesign::Pad", "Pad022")
body23.addObject(pad23)
pad23.Profile = sketch23
pad23.Length = 35
pad23.Reversed = True
body24 = doc.addObject("PartDesign::Body", "Body023")

# Sketch on XZ plane
sketch24 = doc.addObject("Sketcher::SketchObject", "Sketch023")
body24.addObject(sketch24)
sketch24.AttachmentSupport = (doc.getObject("XZ_Plane023"), [""])
sketch24.MapMode = "FlatFace"
add_polygon(sketch24, [(525, 95), (525, 60), (570, 60), (570, 95)])  # lines 0-3
sketch24.addConstraint(Sketcher.Constraint("Vertical", 0))
sketch24.addConstraint(Sketcher.Constraint("Horizontal", 1))
sketch24.addConstraint(Sketcher.Constraint("Vertical", 2))
sketch24.addConstraint(Sketcher.Constraint("Horizontal", 3))
sketch24.addConstraint(Sketcher.Constraint("DistanceX", 1, 1, 1, 2, 45.0))
sketch24.addConstraint(Sketcher.Constraint("DistanceY", 0, 2, 0, 1, 35.0))
sketch24.addConstraint(Sketcher.Constraint("DistanceX", -1, 1, 0, 2, 525.0))
sketch24.addConstraint(Sketcher.Constraint("DistanceY", -1, 1, 0, 2, 60.0))
pad24 = doc.addObject("PartDesign::Pad", "Pad023")
body24.addObject(pad24)
pad24.Profile = sketch24
pad24.Type = "TwoLengths"
pad24.Length = 52.5
pad24.Length2 = 52.5
body25 = doc.addObject("PartDesign::Body", "Body024")

# Sketch on YZ plane
sketch25 = doc.addObject("Sketcher::SketchObject", "Sketch024")
body25.addObject(sketch25)
sketch25.AttachmentSupport = (doc.getObject("YZ_Plane024"), [""])
sketch25.MapMode = "FlatFace"
sketch25.AttachmentOffset = App.Placement(App.Vector(0, 0, 247.5), App.Rotation())
add_polygon(sketch25, [(-900, 420), (-900, 95), (-880, 95), (-880, 400)])  # lines 0-3
sketch25.addConstraint(Sketcher.Constraint("Vertical", 0))
sketch25.addConstraint(Sketcher.Constraint("Horizontal", 1))
sketch25.addConstraint(Sketcher.Constraint("Vertical", 2))
sketch25.addConstraint(Sketcher.Constraint("DistanceX", 1, 1, 1, 2, 20.0))
sketch25.addConstraint(Sketcher.Constraint("DistanceY", 0, 2, 0, 1, 325.0))
sketch25.addConstraint(Sketcher.Constraint("DistanceY", 2, 1, 2, 2, 305.0))
sketch25.addConstraint(Sketcher.Constraint("DistanceX", 0, 2, -1, 1, 900.0))
sketch25.addConstraint(Sketcher.Constraint("DistanceY", -1, 1, 0, 2, 95.0))
pad25 = doc.addObject("PartDesign::Pad", "Pad024")
body25.addObject(pad25)
pad25.Profile = sketch25
pad25.Length = 35
body26 = doc.addObject("PartDesign::Body", "Body025")

# Sketch on YZ plane
sketch26 = doc.addObject("Sketcher::SketchObject", "Sketch025")
body26.addObject(sketch26)
sketch26.AttachmentSupport = (doc.getObject("YZ_Plane025"), [""])
sketch26.MapMode = "FlatFace"
sketch26.AttachmentOffset = App.Placement(App.Vector(0, 0, 782.5), App.Rotation())
add_polygon(sketch26, [(-900, 420), (-900, 95), (-880, 95), (-880, 400)])  # lines 0-3
sketch26.addConstraint(Sketcher.Constraint("Vertical", 0))
sketch26.addConstraint(Sketcher.Constraint("Horizontal", 1))
sketch26.addConstraint(Sketcher.Constraint("Vertical", 2))
sketch26.addConstraint(Sketcher.Constraint("DistanceX", 1, 1, 1, 2, 20.0))
sketch26.addConstraint(Sketcher.Constraint("DistanceY", 0, 2, 0, 1, 325.0))
sketch26.addConstraint(Sketcher.Constraint("DistanceY", 2, 1, 2, 2, 305.0))
sketch26.addConstraint(Sketcher.Constraint("DistanceX", 0, 2, -1, 1, 900.0))
sketch26.addConstraint(Sketcher.Constraint("DistanceY", -1, 1, 0, 2, 95.0))
pad26 = doc.addObject("PartDesign::Pad", "Pad025")
body26.addObject(pad26)
pad26.Profile = sketch26
pad26.Length = 35
body27 = doc.addObject("PartDesign::Body", "Body026")

# Sketch on YZ plane
sketch27 = doc.addObject("Sketcher::SketchObject", "Sketch026")
body27.addObject(sketch27)
sketch27.AttachmentSupport = (doc.getObject("YZ_Plane026"), [""])
sketch27.MapMode = "FlatFace"
sketch27.AttachmentOffset = App.Placement(App.Vector(0, 0, 505), App.Rotation())
add_polygon(sketch27, [(-900, 195), (-900, 60), (-785, 60), (-785, 10), (-750, 10), (-750, 60), (-715, 60), (-715, 10), (-680, 10), (-680, 95), (-880, 95), (-880, 195)])  # lines 0-11
sketch27.addConstraint(Sketcher.Constraint("Vertical", 0))
sketch27.addConstraint(Sketcher.Constraint("Horizontal", 1))
sketch27.addConstraint(Sketcher.Constraint("Vertical", 2))
sketch27.addConstraint(Sketcher.Constraint("Horizontal", 3))
sketch27.addConstraint(Sketcher.Constraint("Vertical", 4))
sketch27.addConstraint(Sketcher.Constraint("Horizontal", 5))
sketch27.addConstraint(Sketcher.Constraint("Vertical", 6))
sketch27.addConstraint(Sketcher.Constraint("Horizontal", 7))
sketch27.addConstraint(Sketcher.Constraint("Vertical", 8))
sketch27.addConstraint(Sketcher.Constraint("Horizontal", 9))
sketch27.addConstraint(Sketcher.Constraint("Vertical", 10))
sketch27.addConstraint(Sketcher.Constraint("Horizontal", 11))
sketch27.addConstraint(Sketcher.Constraint("Horizontal", 1, 2, 4, 2))
sketch27.addConstraint(Sketcher.Constraint("Horizontal", 3, 2, 6, 2))
sketch27.addConstraint(Sketcher.Constraint("Equal", 3, 5))
sketch27.addConstraint(Sketcher.Constraint("Equal", 5, 7))
sketch27.addConstraint(Sketcher.Constraint("DistanceX", 1, 1, 1, 2, 115.0))
sketch27.addConstraint(Sketcher.Constraint("DistanceX", 3, 1, 3, 2, 35.0))
sketch27.addConstraint(Sketcher.Constraint("DistanceX", 9, 2, 9, 1, 200.0))
sketch27.addConstraint(Sketcher.Constraint("DistanceY", 0, 2, 0, 1, 135.0))
sketch27.addConstraint(Sketcher.Constraint("DistanceY", 2, 2, 2, 1, 50.0))
sketch27.addConstraint(Sketcher.Constraint("DistanceY", 8, 1, 8, 2, 85.0))
sketch27.addConstraint(Sketcher.Constraint("DistanceX", 0, 2, -1, 1, 900.0))
sketch27.addConstraint(Sketcher.Constraint("DistanceY", -1, 1, 0, 2, 60.0))
pad27 = doc.addObject("PartDesign::Pad", "Pad026")
body27.addObject(pad27)
pad27.Profile = sketch27
pad27.Length = 65
body28 = doc.addObject("PartDesign::Body", "Body027")
doc.recompute()

mirroring = doc.addObject("Part::Mirroring", "Mirroring")
mirroring.Source = body26
mirroring.Base = App.Vector(0, 0, 0)
mirroring.Normal = App.Vector(0, -1, 0)
body28.BaseFeature = mirroring
doc.recompute()
body29 = doc.addObject("PartDesign::Body", "Body028")
doc.recompute()

mirroring2 = doc.addObject("Part::Mirroring", "Mirroring001")
mirroring2.Source = body25
mirroring2.Base = App.Vector(0, 0, 0)
mirroring2.Normal = App.Vector(0, -1, 0)
body29.BaseFeature = mirroring2
doc.recompute()
body30 = doc.addObject("PartDesign::Body", "Body029")
doc.recompute()

mirroring3 = doc.addObject("Part::Mirroring", "Mirroring002")
mirroring3.Source = body27
mirroring3.Base = App.Vector(0, 0, 0)
mirroring3.Normal = App.Vector(0, -1, 0)
body30.BaseFeature = mirroring3
doc.recompute()
body31 = doc.addObject("PartDesign::Body", "Body030")

# Sketch on XZ plane
sketch28 = doc.addObject("Sketcher::SketchObject", "Sketch027")
body31.addObject(sketch28)
sketch28.AttachmentSupport = (doc.getObject("XZ_Plane030"), [""])
sketch28.MapMode = "FlatFace"
sketch28.addGeometry(Part.LineSegment(App.Vector(1000, 380, 0), App.Vector(390, 380, 0)), False)
sketch28.addGeometry(Part.ArcOfCircle(Part.Circle(App.Vector(390, 340, 0), App.Vector(0, 0, 1), 40), math.radians(90), math.radians(180)), False)
sketch28.addGeometry(Part.LineSegment(App.Vector(350, 340, 0), App.Vector(350, 95, 0)), False)
sketch28.addGeometry(Part.LineSegment(App.Vector(350, 95, 0), App.Vector(1040, 95, 0)), False)
sketch28.addGeometry(Part.LineSegment(App.Vector(1040, 95, 0), App.Vector(1040, 340, 0)), False)
sketch28.addGeometry(Part.ArcOfCircle(Part.Circle(App.Vector(1000, 340, 0), App.Vector(0, 0, 1), 40), math.radians(0), math.radians(90)), False)
sketch28.addConstraint(Sketcher.Constraint("Tangent", 0, 2, 1, 1))
sketch28.addConstraint(Sketcher.Constraint("Tangent", 1, 2, 2, 1))
sketch28.addConstraint(Sketcher.Constraint("Coincident", 2, 2, 3, 1))
sketch28.addConstraint(Sketcher.Constraint("Coincident", 3, 2, 4, 1))
sketch28.addConstraint(Sketcher.Constraint("Tangent", 4, 2, 5, 1))
sketch28.addConstraint(Sketcher.Constraint("Tangent", 5, 2, 0, 1))
sketch28.addConstraint(Sketcher.Constraint("Horizontal", 0))
sketch28.addConstraint(Sketcher.Constraint("Vertical", 2))
sketch28.addConstraint(Sketcher.Constraint("Horizontal", 3))
sketch28.addConstraint(Sketcher.Constraint("Vertical", 4))
sketch28.addConstraint(Sketcher.Constraint("Equal", 1, 5))
sketch28.addConstraint(Sketcher.Constraint("Radius", 1, 40.0))
sketch28.addConstraint(Sketcher.Constraint("DistanceX", 0, 2, 0, 1, 610.0))
sketch28.addConstraint(Sketcher.Constraint("DistanceY", 2, 2, 2, 1, 245.0))
sketch28.addConstraint(Sketcher.Constraint("DistanceX", -1, 1, 1, 3, 390.0))
sketch28.addConstraint(Sketcher.Constraint("DistanceY", -1, 1, 1, 3, 340.0))
pad28 = doc.addObject("PartDesign::Pad", "Pad027")
body31.addObject(pad28)
pad28.Profile = sketch28
pad28.Length = 900
doc.recompute()

fillet = doc.addObject("PartDesign::Fillet", "Fillet")
body31.addObject(fillet)
fillet.Base = (pad28, edges_at(pad28, [(695, 0, 380)]))
fillet.Radius = 40
doc.recompute()

fillet2 = doc.addObject("PartDesign::Fillet", "Fillet001")
body31.addObject(fillet2)
fillet2.Base = (fillet, edges_at(fillet, [(695, -900, 380)]))
fillet2.Radius = 40
body32 = doc.addObject("PartDesign::Body", "Body031")
doc.recompute()

mirroring4 = doc.addObject("Part::Mirroring", "Mirroring003")
mirroring4.Source = body31
mirroring4.Base = App.Vector(0, 0, 0)
mirroring4.Normal = App.Vector(0, -1, 0)
body32.BaseFeature = mirroring4
doc.recompute()
body33 = doc.addObject("PartDesign::Body", "Body032")

# Sketch on XZ plane
sketch29 = doc.addObject("Sketcher::SketchObject", "Sketch028")
body33.addObject(sketch29)
sketch29.AttachmentSupport = (doc.getObject("XZ_Plane032"), [""])
sketch29.MapMode = "FlatFace"
sketch29.addGeometry(Part.LineSegment(App.Vector(310, 700, 0), App.Vector(75, 700, 0)), False)
sketch29.addGeometry(Part.ArcOfCircle(Part.Circle(App.Vector(75, 660, 0), App.Vector(0, 0, 1), 40), math.radians(90), math.radians(180)), False)
sketch29.addGeometry(Part.LineSegment(App.Vector(35, 660, 0), App.Vector(35, 95, 0)), False)
sketch29.addGeometry(Part.LineSegment(App.Vector(35, 95, 0), App.Vector(350, 95, 0)), False)
sketch29.addGeometry(Part.LineSegment(App.Vector(350, 95, 0), App.Vector(350, 660, 0)), False)
sketch29.addGeometry(Part.ArcOfCircle(Part.Circle(App.Vector(310, 660, 0), App.Vector(0, 0, 1), 40), math.radians(0), math.radians(90)), False)
sketch29.addConstraint(Sketcher.Constraint("Tangent", 0, 2, 1, 1))
sketch29.addConstraint(Sketcher.Constraint("Tangent", 1, 2, 2, 1))
sketch29.addConstraint(Sketcher.Constraint("Coincident", 2, 2, 3, 1))
sketch29.addConstraint(Sketcher.Constraint("Coincident", 3, 2, 4, 1))
sketch29.addConstraint(Sketcher.Constraint("Tangent", 4, 2, 5, 1))
sketch29.addConstraint(Sketcher.Constraint("Tangent", 5, 2, 0, 1))
sketch29.addConstraint(Sketcher.Constraint("Horizontal", 0))
sketch29.addConstraint(Sketcher.Constraint("Vertical", 2))
sketch29.addConstraint(Sketcher.Constraint("Horizontal", 3))
sketch29.addConstraint(Sketcher.Constraint("Vertical", 4))
sketch29.addConstraint(Sketcher.Constraint("Equal", 1, 5))
sketch29.addConstraint(Sketcher.Constraint("Radius", 1, 40.0))
sketch29.addConstraint(Sketcher.Constraint("DistanceX", 0, 2, 0, 1, 235.0))
sketch29.addConstraint(Sketcher.Constraint("DistanceY", 2, 2, 2, 1, 565.0))
sketch29.addConstraint(Sketcher.Constraint("DistanceX", -1, 1, 1, 3, 75.0))
sketch29.addConstraint(Sketcher.Constraint("DistanceY", -1, 1, 1, 3, 660.0))
pad29 = doc.addObject("PartDesign::Pad", "Pad028")
body33.addObject(pad29)
pad29.Profile = sketch29
pad29.Length = 900
doc.recompute()

fillet3 = doc.addObject("PartDesign::Fillet", "Fillet002")
body33.addObject(fillet3)
fillet3.Base = (pad29, edges_at(pad29, [(350, 0, 377.5), (192.5, -900, 700)]))
fillet3.Radius = 40
body34 = doc.addObject("PartDesign::Body", "Body033")
doc.recompute()

mirroring5 = doc.addObject("Part::Mirroring", "Mirroring004")
mirroring5.Source = body33
mirroring5.Base = App.Vector(0, 0, 0)
mirroring5.Normal = App.Vector(0, -1, 0)
body34.BaseFeature = mirroring5
doc.recompute()
body35 = doc.addObject("PartDesign::Body", "Body034")

# Sketch on YZ plane
sketch30 = doc.addObject("Sketcher::SketchObject", "Sketch029")
body35.addObject(sketch30)
sketch30.AttachmentSupport = (doc.getObject("YZ_Plane034"), [""])
sketch30.MapMode = "FlatFace"
sketch30.AttachmentOffset = App.Placement(App.Vector(0, 0, 350), App.Rotation())
sketch30.addGeometry(Part.LineSegment(App.Vector(860, 706, 0), App.Vector(625, 706, 0)), False)
sketch30.addGeometry(Part.ArcOfCircle(Part.Circle(App.Vector(625, 666, 0), App.Vector(0, 0, 1), 40), math.radians(90), math.radians(180)), False)
sketch30.addGeometry(Part.LineSegment(App.Vector(585, 666, 0), App.Vector(585, 425, 0)), False)
sketch30.addGeometry(Part.ArcOfCircle(Part.Circle(App.Vector(625, 425, 0), App.Vector(0, 0, 1), 40), math.radians(180), math.radians(270)), False)
sketch30.addGeometry(Part.LineSegment(App.Vector(625, 385, 0), App.Vector(860, 385, 0)), False)
sketch30.addGeometry(Part.ArcOfCircle(Part.Circle(App.Vector(860, 425, 0), App.Vector(0, 0, 1), 40), math.radians(-90), math.radians(0)), False)
sketch30.addGeometry(Part.LineSegment(App.Vector(900, 425, 0), App.Vector(900, 666, 0)), False)
sketch30.addGeometry(Part.ArcOfCircle(Part.Circle(App.Vector(860, 666, 0), App.Vector(0, 0, 1), 40), math.radians(0), math.radians(90)), False)
sketch30.addConstraint(Sketcher.Constraint("Tangent", 0, 2, 1, 1))
sketch30.addConstraint(Sketcher.Constraint("Tangent", 1, 2, 2, 1))
sketch30.addConstraint(Sketcher.Constraint("Tangent", 2, 2, 3, 1))
sketch30.addConstraint(Sketcher.Constraint("Tangent", 3, 2, 4, 1))
sketch30.addConstraint(Sketcher.Constraint("Tangent", 4, 2, 5, 1))
sketch30.addConstraint(Sketcher.Constraint("Tangent", 5, 2, 6, 1))
sketch30.addConstraint(Sketcher.Constraint("Tangent", 6, 2, 7, 1))
sketch30.addConstraint(Sketcher.Constraint("Tangent", 7, 2, 0, 1))
sketch30.addConstraint(Sketcher.Constraint("Horizontal", 0))
sketch30.addConstraint(Sketcher.Constraint("Vertical", 2))
sketch30.addConstraint(Sketcher.Constraint("Horizontal", 4))
sketch30.addConstraint(Sketcher.Constraint("Vertical", 6))
sketch30.addConstraint(Sketcher.Constraint("Equal", 1, 3))
sketch30.addConstraint(Sketcher.Constraint("Equal", 3, 5))
sketch30.addConstraint(Sketcher.Constraint("Equal", 5, 7))
sketch30.addConstraint(Sketcher.Constraint("Radius", 1, 40.0))
sketch30.addConstraint(Sketcher.Constraint("DistanceX", 0, 2, 0, 1, 235.0))
sketch30.addConstraint(Sketcher.Constraint("DistanceX", -1, 1, 1, 3, 625.0))
sketch30.addConstraint(Sketcher.Constraint("DistanceY", 2, 2, 2, 1, 241.428571))
sketch30.addConstraint(Sketcher.Constraint("DistanceY", -1, 1, 1, 3, 665.946567))
pad30 = doc.addObject("PartDesign::Pad", "Pad029")
body35.addObject(pad30)
pad30.Profile = sketch30
pad30.Length = 690
doc.recompute()

fillet4 = doc.addObject("PartDesign::Fillet", "Fillet003")
body35.addObject(fillet4)
fillet4.Base = (pad30, edges_at(pad30, [(1040, 585, 545.232)]))
fillet4.Radius = 40
doc.recompute()

fillet5 = doc.addObject("PartDesign::Fillet", "Fillet004")
body35.addObject(fillet5)
fillet5.Base = (fillet4, edges_at(fillet4, [(350, 596.716, 694.231)]))
fillet5.Radius = 40

doc.recompute()
